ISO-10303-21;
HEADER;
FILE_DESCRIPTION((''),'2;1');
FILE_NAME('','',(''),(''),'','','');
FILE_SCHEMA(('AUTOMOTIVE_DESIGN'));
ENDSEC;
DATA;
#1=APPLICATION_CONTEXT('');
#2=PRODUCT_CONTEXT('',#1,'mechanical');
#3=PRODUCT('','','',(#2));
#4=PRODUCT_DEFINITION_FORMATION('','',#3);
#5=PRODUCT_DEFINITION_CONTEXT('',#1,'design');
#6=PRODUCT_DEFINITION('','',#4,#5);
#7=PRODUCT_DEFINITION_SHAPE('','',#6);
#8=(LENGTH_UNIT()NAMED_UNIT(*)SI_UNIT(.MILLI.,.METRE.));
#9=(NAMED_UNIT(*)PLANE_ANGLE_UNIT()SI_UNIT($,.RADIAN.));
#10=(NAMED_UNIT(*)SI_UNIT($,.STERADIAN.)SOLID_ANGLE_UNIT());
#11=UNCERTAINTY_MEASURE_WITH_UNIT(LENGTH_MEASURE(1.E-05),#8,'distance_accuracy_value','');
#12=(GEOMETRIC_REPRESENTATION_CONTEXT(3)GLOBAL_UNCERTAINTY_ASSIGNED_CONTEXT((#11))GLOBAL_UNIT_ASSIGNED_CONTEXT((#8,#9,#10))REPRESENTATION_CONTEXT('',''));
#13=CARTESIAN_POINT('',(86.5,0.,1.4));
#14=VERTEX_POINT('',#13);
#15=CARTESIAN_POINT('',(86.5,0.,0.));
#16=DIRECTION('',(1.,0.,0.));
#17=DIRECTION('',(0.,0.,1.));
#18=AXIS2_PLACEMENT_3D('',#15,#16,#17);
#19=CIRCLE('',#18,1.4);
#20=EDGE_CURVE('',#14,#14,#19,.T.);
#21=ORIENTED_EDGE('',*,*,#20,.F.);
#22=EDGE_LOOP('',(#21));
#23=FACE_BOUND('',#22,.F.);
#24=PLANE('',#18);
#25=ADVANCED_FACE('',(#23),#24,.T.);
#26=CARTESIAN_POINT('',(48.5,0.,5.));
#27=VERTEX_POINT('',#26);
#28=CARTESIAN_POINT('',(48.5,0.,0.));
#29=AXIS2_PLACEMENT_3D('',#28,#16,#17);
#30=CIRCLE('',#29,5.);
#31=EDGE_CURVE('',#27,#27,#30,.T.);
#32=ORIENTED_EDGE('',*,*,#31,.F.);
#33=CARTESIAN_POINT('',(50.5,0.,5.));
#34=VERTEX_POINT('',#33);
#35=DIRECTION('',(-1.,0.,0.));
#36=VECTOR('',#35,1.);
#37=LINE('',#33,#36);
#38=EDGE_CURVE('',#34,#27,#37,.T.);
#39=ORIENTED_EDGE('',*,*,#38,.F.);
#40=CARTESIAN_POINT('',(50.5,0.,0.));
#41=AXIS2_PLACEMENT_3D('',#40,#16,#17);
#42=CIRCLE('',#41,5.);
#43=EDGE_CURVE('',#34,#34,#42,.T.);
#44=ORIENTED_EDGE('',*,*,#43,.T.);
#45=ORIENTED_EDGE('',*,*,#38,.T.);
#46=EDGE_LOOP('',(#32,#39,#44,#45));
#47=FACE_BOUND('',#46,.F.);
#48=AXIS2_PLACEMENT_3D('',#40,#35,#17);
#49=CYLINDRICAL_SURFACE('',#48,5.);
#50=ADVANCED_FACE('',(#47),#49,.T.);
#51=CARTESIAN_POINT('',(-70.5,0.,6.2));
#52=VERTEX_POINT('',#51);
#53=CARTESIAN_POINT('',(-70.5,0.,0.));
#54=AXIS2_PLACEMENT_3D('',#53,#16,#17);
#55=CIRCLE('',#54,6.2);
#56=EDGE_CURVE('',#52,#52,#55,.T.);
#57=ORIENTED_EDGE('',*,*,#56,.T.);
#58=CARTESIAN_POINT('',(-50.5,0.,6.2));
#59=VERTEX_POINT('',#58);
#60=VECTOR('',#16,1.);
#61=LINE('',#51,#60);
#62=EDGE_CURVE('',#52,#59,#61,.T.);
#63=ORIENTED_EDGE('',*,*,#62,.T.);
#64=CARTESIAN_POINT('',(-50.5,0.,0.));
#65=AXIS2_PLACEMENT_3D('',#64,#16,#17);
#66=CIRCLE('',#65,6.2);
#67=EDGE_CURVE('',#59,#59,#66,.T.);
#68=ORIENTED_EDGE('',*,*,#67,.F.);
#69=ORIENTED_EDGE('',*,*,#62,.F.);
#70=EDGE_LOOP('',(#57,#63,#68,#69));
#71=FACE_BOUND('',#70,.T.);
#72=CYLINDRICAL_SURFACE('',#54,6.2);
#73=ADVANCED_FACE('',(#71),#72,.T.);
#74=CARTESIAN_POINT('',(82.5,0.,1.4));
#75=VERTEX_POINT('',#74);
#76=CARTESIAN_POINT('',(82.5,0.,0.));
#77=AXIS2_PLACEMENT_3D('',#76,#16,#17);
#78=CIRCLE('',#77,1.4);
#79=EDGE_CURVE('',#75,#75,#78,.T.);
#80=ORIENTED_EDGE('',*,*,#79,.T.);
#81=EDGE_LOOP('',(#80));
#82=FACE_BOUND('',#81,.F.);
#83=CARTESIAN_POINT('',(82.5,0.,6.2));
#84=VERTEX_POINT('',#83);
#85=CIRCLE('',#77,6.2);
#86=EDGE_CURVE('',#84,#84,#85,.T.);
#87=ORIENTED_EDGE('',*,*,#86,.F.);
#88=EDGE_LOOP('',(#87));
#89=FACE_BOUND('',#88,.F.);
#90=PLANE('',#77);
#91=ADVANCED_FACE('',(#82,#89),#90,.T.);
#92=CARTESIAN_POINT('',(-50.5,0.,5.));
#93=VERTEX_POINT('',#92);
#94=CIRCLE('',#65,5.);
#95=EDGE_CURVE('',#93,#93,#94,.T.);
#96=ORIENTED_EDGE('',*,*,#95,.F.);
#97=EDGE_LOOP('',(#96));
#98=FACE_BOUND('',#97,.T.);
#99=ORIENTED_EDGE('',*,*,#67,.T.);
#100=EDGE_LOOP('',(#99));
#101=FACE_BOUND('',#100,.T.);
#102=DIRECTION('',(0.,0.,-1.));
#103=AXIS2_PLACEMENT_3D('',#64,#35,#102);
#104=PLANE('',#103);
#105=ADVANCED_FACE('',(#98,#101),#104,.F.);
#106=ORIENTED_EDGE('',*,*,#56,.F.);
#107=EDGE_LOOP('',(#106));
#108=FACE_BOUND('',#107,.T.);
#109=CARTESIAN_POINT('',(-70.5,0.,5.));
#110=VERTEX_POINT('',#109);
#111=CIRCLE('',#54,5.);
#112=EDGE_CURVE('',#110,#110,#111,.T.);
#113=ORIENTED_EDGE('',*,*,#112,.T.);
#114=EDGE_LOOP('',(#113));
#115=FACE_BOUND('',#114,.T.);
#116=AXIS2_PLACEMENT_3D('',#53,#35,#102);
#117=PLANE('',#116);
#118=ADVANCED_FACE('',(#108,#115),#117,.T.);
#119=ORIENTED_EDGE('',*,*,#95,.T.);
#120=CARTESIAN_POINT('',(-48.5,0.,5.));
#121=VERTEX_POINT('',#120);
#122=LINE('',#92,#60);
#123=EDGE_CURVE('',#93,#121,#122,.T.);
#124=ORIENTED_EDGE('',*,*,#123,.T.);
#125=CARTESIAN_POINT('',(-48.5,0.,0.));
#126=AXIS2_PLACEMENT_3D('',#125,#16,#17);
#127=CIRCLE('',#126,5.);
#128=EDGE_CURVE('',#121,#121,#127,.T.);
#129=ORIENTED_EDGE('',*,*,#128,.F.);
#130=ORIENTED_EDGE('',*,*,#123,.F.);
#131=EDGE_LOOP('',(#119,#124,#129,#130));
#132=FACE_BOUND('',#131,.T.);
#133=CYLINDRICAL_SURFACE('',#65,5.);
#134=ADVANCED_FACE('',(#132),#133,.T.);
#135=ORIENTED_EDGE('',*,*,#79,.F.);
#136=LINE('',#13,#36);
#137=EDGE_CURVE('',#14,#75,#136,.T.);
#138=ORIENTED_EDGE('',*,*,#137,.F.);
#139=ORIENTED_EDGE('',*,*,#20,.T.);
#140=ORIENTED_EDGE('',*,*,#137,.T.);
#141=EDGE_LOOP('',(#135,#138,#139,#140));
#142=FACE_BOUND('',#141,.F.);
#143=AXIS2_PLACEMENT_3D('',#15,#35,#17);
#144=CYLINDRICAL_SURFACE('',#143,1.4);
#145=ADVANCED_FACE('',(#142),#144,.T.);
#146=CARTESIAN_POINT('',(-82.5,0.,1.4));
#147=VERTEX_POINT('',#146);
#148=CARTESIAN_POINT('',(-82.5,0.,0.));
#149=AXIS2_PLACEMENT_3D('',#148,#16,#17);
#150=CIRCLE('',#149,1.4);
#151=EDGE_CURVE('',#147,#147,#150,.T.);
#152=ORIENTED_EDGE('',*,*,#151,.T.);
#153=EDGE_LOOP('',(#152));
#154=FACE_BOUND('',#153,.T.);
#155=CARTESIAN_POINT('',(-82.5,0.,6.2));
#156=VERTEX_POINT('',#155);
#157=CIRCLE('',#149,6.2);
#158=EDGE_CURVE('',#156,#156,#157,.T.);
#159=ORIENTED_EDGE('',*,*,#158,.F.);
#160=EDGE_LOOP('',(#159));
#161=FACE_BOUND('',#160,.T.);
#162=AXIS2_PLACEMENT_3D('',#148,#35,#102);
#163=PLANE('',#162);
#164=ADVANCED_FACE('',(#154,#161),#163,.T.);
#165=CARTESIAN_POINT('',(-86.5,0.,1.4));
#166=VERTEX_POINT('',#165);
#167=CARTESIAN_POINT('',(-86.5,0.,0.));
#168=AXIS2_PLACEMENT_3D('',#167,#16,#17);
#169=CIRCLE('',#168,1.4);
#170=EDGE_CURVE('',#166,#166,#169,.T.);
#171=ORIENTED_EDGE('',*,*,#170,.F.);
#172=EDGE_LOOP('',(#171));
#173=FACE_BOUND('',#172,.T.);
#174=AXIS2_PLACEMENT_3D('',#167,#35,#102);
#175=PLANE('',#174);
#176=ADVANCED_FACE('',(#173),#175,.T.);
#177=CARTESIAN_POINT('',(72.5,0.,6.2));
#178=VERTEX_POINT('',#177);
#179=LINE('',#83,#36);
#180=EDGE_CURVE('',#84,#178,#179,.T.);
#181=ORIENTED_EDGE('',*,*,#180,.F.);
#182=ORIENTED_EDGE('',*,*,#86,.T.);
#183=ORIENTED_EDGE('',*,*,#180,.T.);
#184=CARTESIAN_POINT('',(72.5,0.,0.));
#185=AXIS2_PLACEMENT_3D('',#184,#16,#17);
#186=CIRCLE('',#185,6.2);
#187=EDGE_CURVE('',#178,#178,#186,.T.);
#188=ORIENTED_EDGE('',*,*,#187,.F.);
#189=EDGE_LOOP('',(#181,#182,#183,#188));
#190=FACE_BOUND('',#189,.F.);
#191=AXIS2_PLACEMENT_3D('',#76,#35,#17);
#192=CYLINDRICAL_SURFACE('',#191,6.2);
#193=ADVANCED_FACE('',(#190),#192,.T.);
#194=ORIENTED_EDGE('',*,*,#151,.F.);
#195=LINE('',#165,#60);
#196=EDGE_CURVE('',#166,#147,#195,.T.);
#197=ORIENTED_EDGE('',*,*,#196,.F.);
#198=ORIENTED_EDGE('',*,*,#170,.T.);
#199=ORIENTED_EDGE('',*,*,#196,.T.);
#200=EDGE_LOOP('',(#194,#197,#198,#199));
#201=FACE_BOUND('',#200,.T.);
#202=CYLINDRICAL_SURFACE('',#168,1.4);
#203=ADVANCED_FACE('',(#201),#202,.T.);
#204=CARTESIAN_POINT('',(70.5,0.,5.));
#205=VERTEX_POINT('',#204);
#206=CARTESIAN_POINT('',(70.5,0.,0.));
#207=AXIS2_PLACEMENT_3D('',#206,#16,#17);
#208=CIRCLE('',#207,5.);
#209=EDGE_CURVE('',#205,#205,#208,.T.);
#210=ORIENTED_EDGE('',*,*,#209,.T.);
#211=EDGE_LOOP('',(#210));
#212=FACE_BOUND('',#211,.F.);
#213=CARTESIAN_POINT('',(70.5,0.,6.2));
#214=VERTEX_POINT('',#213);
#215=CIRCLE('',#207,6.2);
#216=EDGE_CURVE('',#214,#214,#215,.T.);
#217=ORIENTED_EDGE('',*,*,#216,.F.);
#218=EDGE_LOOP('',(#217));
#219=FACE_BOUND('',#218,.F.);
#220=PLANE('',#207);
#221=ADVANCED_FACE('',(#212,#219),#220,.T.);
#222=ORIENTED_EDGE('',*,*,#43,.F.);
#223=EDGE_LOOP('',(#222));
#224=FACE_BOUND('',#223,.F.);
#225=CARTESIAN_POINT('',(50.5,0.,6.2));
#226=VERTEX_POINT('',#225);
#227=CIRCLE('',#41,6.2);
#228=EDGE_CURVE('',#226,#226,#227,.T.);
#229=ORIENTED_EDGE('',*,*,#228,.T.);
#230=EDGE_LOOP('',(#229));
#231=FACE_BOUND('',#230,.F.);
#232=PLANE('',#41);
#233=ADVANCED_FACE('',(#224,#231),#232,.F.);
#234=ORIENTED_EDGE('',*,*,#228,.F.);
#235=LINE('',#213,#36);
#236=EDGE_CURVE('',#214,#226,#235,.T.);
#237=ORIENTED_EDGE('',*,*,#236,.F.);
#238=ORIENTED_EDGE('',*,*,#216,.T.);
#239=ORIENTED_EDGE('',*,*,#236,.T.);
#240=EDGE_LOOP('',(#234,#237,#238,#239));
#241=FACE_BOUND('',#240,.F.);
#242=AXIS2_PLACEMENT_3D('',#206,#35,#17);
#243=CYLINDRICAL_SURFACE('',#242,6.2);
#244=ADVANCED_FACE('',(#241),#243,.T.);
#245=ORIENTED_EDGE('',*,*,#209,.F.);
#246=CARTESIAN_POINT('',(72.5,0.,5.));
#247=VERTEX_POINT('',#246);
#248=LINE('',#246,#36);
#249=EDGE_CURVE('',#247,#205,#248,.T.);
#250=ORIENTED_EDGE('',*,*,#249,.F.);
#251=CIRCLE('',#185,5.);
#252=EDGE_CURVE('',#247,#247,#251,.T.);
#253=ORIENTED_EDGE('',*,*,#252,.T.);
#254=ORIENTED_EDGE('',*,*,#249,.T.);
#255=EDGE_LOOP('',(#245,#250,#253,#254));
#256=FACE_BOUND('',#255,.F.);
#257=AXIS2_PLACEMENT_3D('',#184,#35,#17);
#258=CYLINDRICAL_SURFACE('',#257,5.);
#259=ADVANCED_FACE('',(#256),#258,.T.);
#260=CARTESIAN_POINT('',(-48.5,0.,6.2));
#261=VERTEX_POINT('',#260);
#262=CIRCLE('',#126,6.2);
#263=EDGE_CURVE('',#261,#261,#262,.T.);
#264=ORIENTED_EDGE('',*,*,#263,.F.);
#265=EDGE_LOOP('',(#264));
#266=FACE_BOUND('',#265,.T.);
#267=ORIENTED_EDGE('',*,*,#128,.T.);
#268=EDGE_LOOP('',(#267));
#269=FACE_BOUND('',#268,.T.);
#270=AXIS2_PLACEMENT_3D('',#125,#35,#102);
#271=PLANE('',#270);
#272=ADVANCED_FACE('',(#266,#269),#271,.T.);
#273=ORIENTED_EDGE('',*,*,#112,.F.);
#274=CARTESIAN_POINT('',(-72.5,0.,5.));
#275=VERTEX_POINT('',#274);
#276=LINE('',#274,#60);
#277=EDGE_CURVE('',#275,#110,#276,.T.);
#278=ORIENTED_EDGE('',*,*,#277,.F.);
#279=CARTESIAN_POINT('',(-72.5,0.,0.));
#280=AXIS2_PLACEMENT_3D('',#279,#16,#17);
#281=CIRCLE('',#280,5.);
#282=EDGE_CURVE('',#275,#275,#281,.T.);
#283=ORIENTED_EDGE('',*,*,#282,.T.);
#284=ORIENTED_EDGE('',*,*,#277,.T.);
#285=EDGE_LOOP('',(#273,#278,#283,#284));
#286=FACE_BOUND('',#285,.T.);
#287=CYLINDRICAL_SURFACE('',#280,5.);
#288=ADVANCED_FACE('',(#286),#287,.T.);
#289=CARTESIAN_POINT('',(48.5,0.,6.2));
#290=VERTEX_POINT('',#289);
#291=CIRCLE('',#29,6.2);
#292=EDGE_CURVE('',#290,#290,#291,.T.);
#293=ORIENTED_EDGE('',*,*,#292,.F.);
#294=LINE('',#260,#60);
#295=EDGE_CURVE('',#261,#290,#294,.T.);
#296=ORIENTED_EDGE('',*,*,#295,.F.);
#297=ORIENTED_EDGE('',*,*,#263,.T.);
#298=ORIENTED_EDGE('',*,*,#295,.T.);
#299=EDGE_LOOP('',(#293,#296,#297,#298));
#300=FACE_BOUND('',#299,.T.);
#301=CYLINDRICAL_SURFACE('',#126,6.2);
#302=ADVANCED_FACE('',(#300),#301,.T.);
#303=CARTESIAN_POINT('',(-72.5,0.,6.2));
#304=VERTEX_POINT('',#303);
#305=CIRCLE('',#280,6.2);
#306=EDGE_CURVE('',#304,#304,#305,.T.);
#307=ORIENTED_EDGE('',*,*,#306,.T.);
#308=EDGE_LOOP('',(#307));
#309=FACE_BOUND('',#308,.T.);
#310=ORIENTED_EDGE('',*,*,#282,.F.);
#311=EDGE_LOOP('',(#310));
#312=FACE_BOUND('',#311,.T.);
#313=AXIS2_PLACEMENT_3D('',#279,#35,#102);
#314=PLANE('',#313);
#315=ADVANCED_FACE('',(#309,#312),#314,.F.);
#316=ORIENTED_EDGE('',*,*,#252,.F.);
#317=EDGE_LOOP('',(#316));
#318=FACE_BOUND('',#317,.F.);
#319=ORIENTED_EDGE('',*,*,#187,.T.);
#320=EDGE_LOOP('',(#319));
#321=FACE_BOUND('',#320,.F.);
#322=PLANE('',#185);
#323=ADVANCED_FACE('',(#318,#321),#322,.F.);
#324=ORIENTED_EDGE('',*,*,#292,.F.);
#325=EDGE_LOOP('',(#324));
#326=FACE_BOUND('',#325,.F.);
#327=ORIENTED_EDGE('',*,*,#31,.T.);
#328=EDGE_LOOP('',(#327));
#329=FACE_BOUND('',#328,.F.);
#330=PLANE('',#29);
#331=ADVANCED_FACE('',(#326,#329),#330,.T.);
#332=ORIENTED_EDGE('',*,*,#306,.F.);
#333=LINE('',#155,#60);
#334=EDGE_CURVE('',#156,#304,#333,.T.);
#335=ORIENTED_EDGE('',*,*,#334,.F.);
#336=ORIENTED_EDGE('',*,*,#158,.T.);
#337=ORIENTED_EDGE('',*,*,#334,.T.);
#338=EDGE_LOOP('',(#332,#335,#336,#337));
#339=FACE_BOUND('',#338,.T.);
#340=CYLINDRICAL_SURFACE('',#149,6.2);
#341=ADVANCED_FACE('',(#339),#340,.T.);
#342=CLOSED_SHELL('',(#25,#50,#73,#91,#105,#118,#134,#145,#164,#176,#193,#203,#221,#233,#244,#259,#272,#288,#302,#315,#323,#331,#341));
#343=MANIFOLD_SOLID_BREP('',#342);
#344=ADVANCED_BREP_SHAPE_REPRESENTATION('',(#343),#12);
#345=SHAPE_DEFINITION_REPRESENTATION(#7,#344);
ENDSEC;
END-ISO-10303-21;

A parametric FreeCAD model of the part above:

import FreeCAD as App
import Part
import Sketcher

V = App.Vector
Q = App.Units.Quantity

doc = App.newDocument("Part")
params = doc.addObject("Spreadsheet::Sheet", "Params")
for row, (alias, value) in enumerate([
    ("sketch1_width", "4 mm"),
    ("sketch1_width2", "10 mm"),
    ("sketch1_width3", "2 mm"),
    ("sketch1_width4", "20 mm"),
    ("sketch1_width5", "86.5 mm"),
    ("revolution_angle", "360 deg"),
], start=1):
    params.set(f"A{row}", alias)
    params.set(f"B{row}", "=" + value)
    params.setAlias(f"B{row}", alias)

body = doc.addObject("PartDesign::Body", "Body")

# Sketch on XZ plane
sketch1 = body.newObject("Sketcher::SketchObject", "Sketch")
sketch1.AttachmentSupport = (doc.getObject("XZ_Plane"), [""])
sketch1.MapMode = "FlatFace"
sketch1.addGeometry([
    Part.LineSegment(V(0, 6.2, 0), V(0, 0, 0)),  # 0
    Part.LineSegment(V(0, 0, 0), V(86.5, 0, 0)),  # 1
    Part.LineSegment(V(86.5, 0, 0), V(86.5, 1.4, 0)),  # 2
    Part.LineSegment(V(86.5, 1.4, 0), V(82.5, 1.4, 0)),  # 3
    Part.LineSegment(V(82.5, 1.4, 0), V(82.5, 6.2, 0)),  # 4
    Part.LineSegment(V(82.5, 6.2, 0), V(72.5, 6.2, 0)),  # 5
    Part.LineSegment(V(72.5, 6.2, 0), V(72.5, 5, 0)),  # 6
    Part.LineSegment(V(72.5, 5, 0), V(70.5, 5, 0)),  # 7
    Part.LineSegment(V(70.5, 5, 0), V(70.5, 6.2, 0)),  # 8
    Part.LineSegment(V(70.5, 6.2, 0), V(50.5, 6.2, 0)),  # 9
    Part.LineSegment(V(50.5, 6.2, 0), V(50.5, 5, 0)),  # 10
    Part.LineSegment(V(50.5, 5, 0), V(48.5, 5, 0)),  # 11
    Part.LineSegment(V(48.5, 5, 0), V(48.5, 6.2, 0)),  # 12
    Part.LineSegment(V(48.5, 6.2, 0), V(0, 6.2, 0)),  # 13
], False)
sketch1.addConstraint([
    Sketcher.Constraint("Coincident", 0, 2, 1, 1),
    Sketcher.Constraint("Coincident", 1, 2, 2, 1),
    Sketcher.Constraint("Coincident", 2, 2, 3, 1),
    Sketcher.Constraint("Coincident", 3, 2, 4, 1),
    Sketcher.Constraint("Coincident", 4, 2, 5, 1),
    Sketcher.Constraint("Coincident", 5, 2, 6, 1),
    Sketcher.Constraint("Coincident", 6, 2, 7, 1),
    Sketcher.Constraint("Coincident", 7, 2, 8, 1),
    Sketcher.Constraint("Coincident", 8, 2, 9, 1),
    Sketcher.Constraint("Coincident", 9, 2, 10, 1),
    Sketcher.Constraint("Coincident", 10, 2, 11, 1),
    Sketcher.Constraint("Coincident", 11, 2, 12, 1),
    Sketcher.Constraint("Coincident", 12, 2, 13, 1),
    Sketcher.Constraint("Coincident", 13, 2, 0, 1),
    Sketcher.Constraint("Vertical", 0),
    Sketcher.Constraint("Horizontal", 1),
    Sketcher.Constraint("Vertical", 2),
    Sketcher.Constraint("Horizontal", 3),
    Sketcher.Constraint("Vertical", 4),
    Sketcher.Constraint("Horizontal", 5),
    Sketcher.Constraint("Vertical", 6),
    Sketcher.Constraint("Horizontal", 7),
    Sketcher.Constraint("Vertical", 8),
    Sketcher.Constraint("Horizontal", 9),
    Sketcher.Constraint("Vertical", 10),
    Sketcher.Constraint("Horizontal", 11),
    Sketcher.Constraint("Vertical", 12),
    Sketcher.Constraint("Horizontal", 13),
    Sketcher.Constraint("Coincident", 0, 2, -1, 1),
    Sketcher.Constraint("Horizontal", 5, 2, 8, 2),
    Sketcher.Constraint("Horizontal", 7, 2, 10, 2),
    Sketcher.Constraint("Horizontal", 9, 2, 12, 2),
    Sketcher.Constraint("Equal", 7, 11),
    Sketcher.Constraint("DistanceX", 3, 2, 3, 1, Q("4 mm")),
    Sketcher.Constraint("DistanceX", 5, 2, 5, 1, Q("10 mm")),
    Sketcher.Constraint("DistanceX", 7, 2, 7, 1, Q("2 mm")),
    Sketcher.Constraint("DistanceX", 9, 2, 9, 1, Q("20 mm")),
    Sketcher.Constraint("DistanceX", 1, 1, 1, 2, Q("86.5 mm")),
    Sketcher.Constraint("DistanceY", 0, 2, 0, 1, Q("6.2 mm")),
    Sketcher.Constraint("DistanceY", 2, 1, 2, 2, Q("1.4 mm")),
    Sketcher.Constraint("DistanceY", 6, 2, 6, 1, Q("1.2 mm")),
])
sketch1.setExpression("Constraints[33]", "Params.sketch1_width")
sketch1.setExpression("Constraints[34]", "Params.sketch1_width2")
sketch1.setExpression("Constraints[35]", "Params.sketch1_width3")
sketch1.setExpression("Constraints[36]", "Params.sketch1_width4")
sketch1.setExpression("Constraints[37]", "Params.sketch1_width5")
revolution = body.newObject("PartDesign::Revolution", "Revolution")
revolution.Profile = sketch1
revolution.ReferenceAxis = (sketch1, ["H_Axis"])
revolution.setExpression("Angle", "Params.revolution_angle")
body2 = doc.addObject("PartDesign::Body", "Body001")
doc.recompute()

body2.BaseFeature = body
doc.recompute()

mirroring = doc.addObject("Part::Mirroring", "Mirroring")
mirroring.Source = body
mirroring.Base = V(0, 0, 0)
mirroring.Normal = V(-1, 0, 0)
body3 = doc.addObject("PartDesign::Body", "Body002")
body3.BaseFeature = mirroring
boolean = body2.newObject("PartDesign::Boolean", "Boolean")
boolean.Type = "Fuse"
boolean.addObjects([body3])
doc.recompute()
mirroring.Visibility = False

doc.recompute()
